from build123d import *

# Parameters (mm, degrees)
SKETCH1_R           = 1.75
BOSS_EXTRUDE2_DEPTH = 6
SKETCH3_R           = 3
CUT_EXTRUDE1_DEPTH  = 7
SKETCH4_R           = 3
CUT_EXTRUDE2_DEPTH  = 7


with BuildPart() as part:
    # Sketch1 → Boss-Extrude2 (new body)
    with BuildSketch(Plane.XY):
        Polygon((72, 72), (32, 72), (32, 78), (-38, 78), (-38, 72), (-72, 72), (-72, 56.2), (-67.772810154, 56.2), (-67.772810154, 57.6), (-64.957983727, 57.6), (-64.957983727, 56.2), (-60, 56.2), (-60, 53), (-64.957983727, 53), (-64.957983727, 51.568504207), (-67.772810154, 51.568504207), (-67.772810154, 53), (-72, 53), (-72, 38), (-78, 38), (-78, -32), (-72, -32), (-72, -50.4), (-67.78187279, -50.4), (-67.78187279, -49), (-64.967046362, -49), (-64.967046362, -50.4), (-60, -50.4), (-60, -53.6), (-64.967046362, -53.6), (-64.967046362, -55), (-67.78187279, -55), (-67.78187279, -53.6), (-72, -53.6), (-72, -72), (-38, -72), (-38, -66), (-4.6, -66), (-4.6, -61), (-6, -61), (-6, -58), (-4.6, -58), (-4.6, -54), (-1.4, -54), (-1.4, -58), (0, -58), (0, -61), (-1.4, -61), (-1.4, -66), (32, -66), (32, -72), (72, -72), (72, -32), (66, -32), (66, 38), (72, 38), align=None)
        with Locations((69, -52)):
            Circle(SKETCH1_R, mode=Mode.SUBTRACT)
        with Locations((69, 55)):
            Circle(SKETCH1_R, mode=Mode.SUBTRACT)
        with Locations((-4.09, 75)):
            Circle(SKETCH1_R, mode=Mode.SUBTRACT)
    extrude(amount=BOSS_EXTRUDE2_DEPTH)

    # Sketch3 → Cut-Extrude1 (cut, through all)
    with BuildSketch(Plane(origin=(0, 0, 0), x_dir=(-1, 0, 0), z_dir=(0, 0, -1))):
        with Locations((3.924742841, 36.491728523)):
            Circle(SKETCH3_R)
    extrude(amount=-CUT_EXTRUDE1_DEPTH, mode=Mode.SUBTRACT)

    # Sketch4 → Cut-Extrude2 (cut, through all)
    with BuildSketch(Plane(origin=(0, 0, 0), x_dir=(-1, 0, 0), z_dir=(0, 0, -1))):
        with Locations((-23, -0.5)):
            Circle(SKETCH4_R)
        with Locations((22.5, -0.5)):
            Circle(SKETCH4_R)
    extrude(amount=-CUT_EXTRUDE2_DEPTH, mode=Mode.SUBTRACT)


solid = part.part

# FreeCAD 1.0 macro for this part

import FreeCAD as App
import Part
import Sketcher
from FreeCAD import Vector


def add_polygon(sketch, points):
    """Adds a closed chain of lines whose ends are joined by coincident constraints."""
    first, n = sketch.GeometryCount, len(points)
    for a, b in zip(points, points[1:] + points[:1]):
        sketch.addGeometry(Part.LineSegment(App.Vector(*a, 0), App.Vector(*b, 0)), False)
    for i in range(n):
        sketch.addConstraint(Sketcher.Constraint("Coincident", first + i, 2, first + (i + 1) % n, 1))

doc = App.newDocument("Part")
body = doc.addObject("PartDesign::Body", "Body")

sketch1 = body.newObject("Sketcher::SketchObject", "Sketch")
sketch1.AttachmentSupport = (doc.getObject("XY_Plane"), [""])
sketch1.MapMode = "FlatFace"
add_polygon(sketch1, [(72, 72), (32, 72), (32, 78), (-38, 78), (-38, 72), (-72, 72), (-72, 56.2), (-67.77281, 56.2), (-67.77281, 57.6), (-64.957984, 57.6), (-64.957984, 56.2), (-60, 56.2), (-60, 53), (-64.957984, 53), (-64.957984, 51.568504), (-67.77281, 51.568504), (-67.77281, 53), (-72, 53), (-72, 38), (-78, 38), (-78, -32), (-72, -32), (-72, -50.4), (-67.781873, -50.4), (-67.781873, -49), (-64.967046, -49), (-64.967046, -50.4), (-60, -50.4), (-60, -53.6), (-64.967046, -53.6), (-64.967046, -55), (-67.781873, -55), (-67.781873, -53.6), (-72, -53.6), (-72, -72), (-38, -72), (-38, -66), (-4.6, -66), (-4.6, -61), (-6, -61), (-6, -58), (-4.6, -58), (-4.6, -54), (-1.4, -54), (-1.4, -58), (0, -58), (0, -61), (-1.4, -61), (-1.4, -66), (32, -66), (32, -72), (72, -72), (72, -32), (66, -32), (66, 38), (72, 38)])
sketch1.addGeometry(Part.Circle(Vector(69, -52, 0), Vector(0, 0, 1), 1.75), False)
sketch1.addGeometry(Part.Circle(Vector(-4.09, 75, 0), Vector(0, 0, 1), 1.75), False)
sketch1.addGeometry(Part.Circle(Vector(69, 55, 0), Vector(0, 0, 1), 1.75), False)
sketch1.addConstraint([
    Sketcher.Constraint("Horizontal", 0),
    Sketcher.Constraint("Vertical", 1),
    Sketcher.Constraint("Horizontal", 2),
    Sketcher.Constraint("Vertical", 3),
    Sketcher.Constraint("Horizontal", 4),
    Sketcher.Constraint("Vertical", 5),
    Sketcher.Constraint("Horizontal", 6),
    Sketcher.Constraint("Vertical", 7),
    Sketcher.Constraint("Horizontal", 8),
    Sketcher.Constraint("Vertical", 9),
    Sketcher.Constraint("Horizontal", 10),
    Sketcher.Constraint("Vertical", 11),
    Sketcher.Constraint("Horizontal", 12),
    Sketcher.Constraint("Vertical", 13),
    Sketcher.Constraint("Horizontal", 14),
    Sketcher.Constraint("Vertical", 15),
    Sketcher.Constraint("Horizontal", 16),
    Sketcher.Constraint("Vertical", 17),
    Sketcher.Constraint("Horizontal", 18),
    Sketcher.Constraint("Vertical", 19),
    Sketcher.Constraint("Horizontal", 20),
    Sketcher.Constraint("Vertical", 21),
    Sketcher.Constraint("Horizontal", 22),
    Sketcher.Constraint("Vertical", 23),
    Sketcher.Constraint("Horizontal", 24),
    Sketcher.Constraint("Vertical", 25),
    Sketcher.Constraint("Horizontal", 26),
    Sketcher.Constraint("Vertical", 27),
    Sketcher.Constraint("Horizontal", 28),
    Sketcher.Constraint("Vertical", 29),
    Sketcher.Constraint("Horizontal", 30),
    Sketcher.Constraint("Vertical", 31),
    Sketcher.Constraint("Horizontal", 32),
    Sketcher.Constraint("Vertical", 33),
    Sketcher.Constraint("Horizontal", 34),
    Sketcher.Constraint("Vertical", 35),
    Sketcher.Constraint("Horizontal", 36),
    Sketcher.Constraint("Vertical", 37),
    Sketcher.Constraint("Horizontal", 38),
    Sketcher.Constraint("Vertical", 39),
    Sketcher.Constraint("Horizontal", 40),
    Sketcher.Constraint("Vertical", 41),
    Sketcher.Constraint("Horizontal", 42),
    Sketcher.Constraint("Vertical", 43),
    Sketcher.Constraint("Horizontal", 44),
    Sketcher.Constraint("Vertical", 45),
    Sketcher.Constraint("Horizontal", 46),
    Sketcher.Constraint("Vertical", 47),
    Sketcher.Constraint("Horizontal", 48),
    Sketcher.Constraint("Vertical", 49),
    Sketcher.Constraint("Horizontal", 50),
    Sketcher.Constraint("Vertical", 51),
    Sketcher.Constraint("Horizontal", 52),
    Sketcher.Constraint("Vertical", 53),
    Sketcher.Constraint("Horizontal", 54),
    Sketcher.Constraint("Vertical", 55),
    Sketcher.Constraint("Equal", 56, 57),
    Sketcher.Constraint("Equal", 57, 58),
    Sketcher.Constraint("Symmetric", 4, 2, 50, 2, -1, 1),
    Sketcher.Constraint("Symmetric", 33, 2, 55, 2, -1, 1),
    Sketcher.Constraint("Symmetric", 33, 2, 50, 2, -2),
    Sketcher.Constraint("Symmetric", 20, 2, 51, 2, -2),
    Sketcher.Constraint("Symmetric", 17, 2, 54, 2, -2),
    Sketcher.Constraint("PointOnObject", 44, 2, -2),
    Sketcher.Constraint("Horizontal", 6, 2, 9, 2),
    Sketcher.Constraint("Horizontal", 12, 2, 15, 2),
    Sketcher.Constraint("Horizontal", 22, 2, 25, 2),
    Sketcher.Constraint("Horizontal", 28, 2, 31, 2),
    Sketcher.Constraint("Horizontal", 40, 2, 43, 2),
    Sketcher.Constraint("Horizontal", 38, 2, 45, 2),
    Sketcher.Constraint("Horizontal", 36, 2, 47, 2),
    Sketcher.Constraint("Vertical", 56, 3, 58, 3),
    Sketcher.Constraint("Vertical", 9, 2, 12, 2),
    Sketcher.Constraint("Vertical", 7, 2, 14, 2),
    Sketcher.Constraint("Vertical", 11, 2, 26, 2),
    Sketcher.Constraint("Vertical", 25, 2, 28, 2),
    Sketcher.Constraint("Vertical", 23, 2, 30, 2),
    Sketcher.Constraint("Vertical", 3, 2, 34, 2),
    Sketcher.Constraint("Vertical", 37, 2, 40, 2),
    Sketcher.Constraint("Vertical", 43, 2, 46, 2),
    Sketcher.Constraint("Vertical", 1, 2, 48, 2),
    Sketcher.Constraint("Equal", 14, 24),
    Sketcher.Constraint("Equal", 40, 44),
    Sketcher.Constraint("Equal", 36, 48),
    Sketcher.Constraint("Equal", 20, 52),
    Sketcher.Constraint("Equal", 54, 1),
    Sketcher.Constraint("Equal", 46, 7),
    Sketcher.Constraint("Equal", 42, 11),
    Sketcher.Constraint("Equal", 2, 19),
    Sketcher.Constraint("Equal", 9, 23),
    Sketcher.Constraint("Equal", 11, 27),
    Sketcher.Constraint("Equal", 25, 29),
    Sketcher.Constraint("Equal", 21, 33),
    Sketcher.Constraint("Equal", 3, 35),
    Sketcher.Constraint("Equal", 50, 51),
    Sketcher.Constraint("Equal", 34, 55),
    Sketcher.Constraint("Diameter", 56, 3.5),
    Sketcher.Constraint("DistanceX", 0, 2, 0, 1, 40.0),
    Sketcher.Constraint("DistanceX", 2, 2, 2, 1, 70.0),
    Sketcher.Constraint("DistanceX", 4, 2, 4, 1, 34.0),
    Sketcher.Constraint("DistanceX", 18, 2, 18, 1, 6.0),
    Sketcher.Constraint("DistanceY", 17, 2, 17, 1, 15.0),
    Sketcher.Constraint("DistanceY", 37, 1, 37, 2, 5.0),
    Sketcher.Constraint("DistanceY", 39, 1, 39, 2, 3.0),
    Sketcher.Constraint("DistanceY", 41, 1, 41, 2, 4.0),
    Sketcher.Constraint("DistanceX", 36, 1, 36, 2, 33.4),
    Sketcher.Constraint("DistanceX", -1, 1, 56, 3, 69.0),
    Sketcher.Constraint("DistanceY", 56, 3, -1, 1, 52.0),
    Sketcher.Constraint("DistanceY", -1, 1, 57, 3, 75.0),
    Sketcher.Constraint("DistanceY", -1, 1, 58, 3, 55.0),
    Sketcher.Constraint("DistanceX", 10, 2, -1, 1, 60.0),
    Sketcher.Constraint("DistanceX", 57, 3, -1, 1, 4.09),
    Sketcher.Constraint("DistanceX", 6, 1, 6, 2, 4.22719),
    Sketcher.Constraint("DistanceX", 8, 1, 8, 2, 2.814826),
    Sketcher.Constraint("DistanceX", 22, 1, 22, 2, 4.218127),
    Sketcher.Constraint("DistanceY", 13, 2, 13, 1, 1.431496),
])
pad1 = body.newObject("PartDesign::Pad", "Pad")
pad1.Profile = sketch1
pad1.Length = 6

sketch2 = body.newObject("Sketcher::SketchObject", "Sketch001")
sketch2.AttachmentSupport = (doc.getObject("XY_Plane"), [""])
sketch2.MapMode = "FlatFace"
sketch2.addGeometry(Part.Circle(Vector(-3.924743, 36.491729, 0), Vector(0, 0, 1), 3), False)
sketch2.addConstraint([
    Sketcher.Constraint("Diameter", 0, 6.0),
    Sketcher.Constraint("DistanceY", -1, 1, 0, 3, 36.491729),
    Sketcher.Constraint("DistanceX", 0, 3, -1, 1, 3.924743),
])
pocket1 = body.newObject("PartDesign::Pocket", "Pocket")
pocket1.Profile = sketch2
pocket1.Type = "ThroughAll"
pocket1.Reversed = True

sketch3 = body.newObject("Sketcher::SketchObject", "Sketch002")
sketch3.AttachmentSupport = (doc.getObject("XY_Plane"), [""])
sketch3.MapMode = "FlatFace"
sketch3.addGeometry([
    Part.Circle(Vector(23, -0.5, 0), Vector(0, 0, 1), 3),
    Part.Circle(Vector(-22.5, -0.5, 0), Vector(0, 0, 1), 3),
], False)
sketch3.addConstraint([
    Sketcher.Constraint("Equal", 0, 1),
    Sketcher.Constraint("Horizontal", 0, 3, 1, 3),
    Sketcher.Constraint("Diameter", 0, 6.0),
    Sketcher.Constraint("DistanceX", -1, 1, 0, 3, 23.0),
    Sketcher.Constraint("DistanceY", 0, 3, -1, 1, 0.5),
    Sketcher.Constraint("DistanceX", 1, 3, -1, 1, 22.5),
])
pocket2 = body.newObject("PartDesign::Pocket", "Pocket001")
pocket2.Profile = sketch3
pocket2.Type = "ThroughAll"
pocket2.Reversed = True

doc.recompute()
